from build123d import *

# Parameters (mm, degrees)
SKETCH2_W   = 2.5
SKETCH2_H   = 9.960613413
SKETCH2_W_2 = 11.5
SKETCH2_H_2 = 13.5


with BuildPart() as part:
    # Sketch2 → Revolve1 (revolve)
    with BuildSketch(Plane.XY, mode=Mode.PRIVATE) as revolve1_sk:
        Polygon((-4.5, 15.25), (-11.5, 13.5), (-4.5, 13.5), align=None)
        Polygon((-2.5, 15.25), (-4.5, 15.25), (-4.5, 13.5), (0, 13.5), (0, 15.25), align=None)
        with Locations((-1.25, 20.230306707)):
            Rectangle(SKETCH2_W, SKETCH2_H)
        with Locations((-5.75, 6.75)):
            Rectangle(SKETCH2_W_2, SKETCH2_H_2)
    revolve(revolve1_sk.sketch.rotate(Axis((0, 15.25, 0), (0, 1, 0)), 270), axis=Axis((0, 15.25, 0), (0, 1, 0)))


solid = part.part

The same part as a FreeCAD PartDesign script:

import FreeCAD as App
import Part
import Sketcher
from FreeCAD import Vector
Q = App.Units.Quantity

doc = App.newDocument("Part")
body = doc.addObject("PartDesign::Body", "Body")

# Sketch on XY plane
sketch1 = body.newObject("Sketcher::SketchObject", "Sketch")
sketch1.AttachmentSupport = (doc.getObject("XY_Plane"), [""])
sketch1.MapMode = "FlatFace"
sketch1.addGeometry([
    Part.LineSegment(Vector(-4.5, 15.25, 0), Vector(-11.5, 13.5, 0)),  # 0
    Part.LineSegment(Vector(-11.5, 13.5, 0), Vector(-11.5, 0, 0)),  # 1
    Part.LineSegment(Vector(-11.5, 0, 0), Vector(0, 0, 0)),  # 2
    Part.LineSegment(Vector(0, 0, 0), Vector(0, 25.210613, 0)),  # 3
    Part.LineSegment(Vector(0, 25.210613, 0), Vector(-2.5, 25.210613, 0)),  # 4
    Part.LineSegment(Vector(-2.5, 25.210613, 0), Vector(-2.5, 15.25, 0)),  # 5
    Part.LineSegment(Vector(-2.5, 15.25, 0), Vector(-4.5, 15.25, 0)),  # 6
], False)
sketch1.addConstraint([
    Sketcher.Constraint("Coincident", 0, 2, 1, 1),
    Sketcher.Constraint("Coincident", 1, 2, 2, 1),
    Sketcher.Constraint("Coincident", 2, 2, 3, 1),
    Sketcher.Constraint("Coincident", 3, 2, 4, 1),
    Sketcher.Constraint("Coincident", 4, 2, 5, 1),
    Sketcher.Constraint("Coincident", 5, 2, 6, 1),
    Sketcher.Constraint("Coincident", 6, 2, 0, 1),
    Sketcher.Constraint("Vertical", 1),
    Sketcher.Constraint("Horizontal", 2),
    Sketcher.Constraint("Vertical", 3),
    Sketcher.Constraint("Horizontal", 4),
    Sketcher.Constraint("Vertical", 5),
    Sketcher.Constraint("Horizontal", 6),
    Sketcher.Constraint("Coincident", 2, 2, -1, 1),
    Sketcher.Constraint("DistanceX", 6, 2, 6, 1, Q("2 mm")),
    Sketcher.Constraint("DistanceX", 2, 1, 2, 2, Q("11.5 mm")),
    Sketcher.Constraint("DistanceX", 4, 2, 4, 1, Q("2.5 mm")),
    Sketcher.Constraint("DistanceY", 1, 2, 1, 1, Q("13.5 mm")),
    Sketcher.Constraint("DistanceY", -1, 1, 5, 2, Q("15.25 mm")),
    Sketcher.Constraint("DistanceY", 3, 1, 3, 2, Q("25.210613 mm")),
])
revolution = body.newObject("PartDesign::Revolution", "Revolution")
revolution.Profile = sketch1
revolution.ReferenceAxis = (sketch1, ["V_Axis"])
revolution.Angle = 360

doc.recompute()
